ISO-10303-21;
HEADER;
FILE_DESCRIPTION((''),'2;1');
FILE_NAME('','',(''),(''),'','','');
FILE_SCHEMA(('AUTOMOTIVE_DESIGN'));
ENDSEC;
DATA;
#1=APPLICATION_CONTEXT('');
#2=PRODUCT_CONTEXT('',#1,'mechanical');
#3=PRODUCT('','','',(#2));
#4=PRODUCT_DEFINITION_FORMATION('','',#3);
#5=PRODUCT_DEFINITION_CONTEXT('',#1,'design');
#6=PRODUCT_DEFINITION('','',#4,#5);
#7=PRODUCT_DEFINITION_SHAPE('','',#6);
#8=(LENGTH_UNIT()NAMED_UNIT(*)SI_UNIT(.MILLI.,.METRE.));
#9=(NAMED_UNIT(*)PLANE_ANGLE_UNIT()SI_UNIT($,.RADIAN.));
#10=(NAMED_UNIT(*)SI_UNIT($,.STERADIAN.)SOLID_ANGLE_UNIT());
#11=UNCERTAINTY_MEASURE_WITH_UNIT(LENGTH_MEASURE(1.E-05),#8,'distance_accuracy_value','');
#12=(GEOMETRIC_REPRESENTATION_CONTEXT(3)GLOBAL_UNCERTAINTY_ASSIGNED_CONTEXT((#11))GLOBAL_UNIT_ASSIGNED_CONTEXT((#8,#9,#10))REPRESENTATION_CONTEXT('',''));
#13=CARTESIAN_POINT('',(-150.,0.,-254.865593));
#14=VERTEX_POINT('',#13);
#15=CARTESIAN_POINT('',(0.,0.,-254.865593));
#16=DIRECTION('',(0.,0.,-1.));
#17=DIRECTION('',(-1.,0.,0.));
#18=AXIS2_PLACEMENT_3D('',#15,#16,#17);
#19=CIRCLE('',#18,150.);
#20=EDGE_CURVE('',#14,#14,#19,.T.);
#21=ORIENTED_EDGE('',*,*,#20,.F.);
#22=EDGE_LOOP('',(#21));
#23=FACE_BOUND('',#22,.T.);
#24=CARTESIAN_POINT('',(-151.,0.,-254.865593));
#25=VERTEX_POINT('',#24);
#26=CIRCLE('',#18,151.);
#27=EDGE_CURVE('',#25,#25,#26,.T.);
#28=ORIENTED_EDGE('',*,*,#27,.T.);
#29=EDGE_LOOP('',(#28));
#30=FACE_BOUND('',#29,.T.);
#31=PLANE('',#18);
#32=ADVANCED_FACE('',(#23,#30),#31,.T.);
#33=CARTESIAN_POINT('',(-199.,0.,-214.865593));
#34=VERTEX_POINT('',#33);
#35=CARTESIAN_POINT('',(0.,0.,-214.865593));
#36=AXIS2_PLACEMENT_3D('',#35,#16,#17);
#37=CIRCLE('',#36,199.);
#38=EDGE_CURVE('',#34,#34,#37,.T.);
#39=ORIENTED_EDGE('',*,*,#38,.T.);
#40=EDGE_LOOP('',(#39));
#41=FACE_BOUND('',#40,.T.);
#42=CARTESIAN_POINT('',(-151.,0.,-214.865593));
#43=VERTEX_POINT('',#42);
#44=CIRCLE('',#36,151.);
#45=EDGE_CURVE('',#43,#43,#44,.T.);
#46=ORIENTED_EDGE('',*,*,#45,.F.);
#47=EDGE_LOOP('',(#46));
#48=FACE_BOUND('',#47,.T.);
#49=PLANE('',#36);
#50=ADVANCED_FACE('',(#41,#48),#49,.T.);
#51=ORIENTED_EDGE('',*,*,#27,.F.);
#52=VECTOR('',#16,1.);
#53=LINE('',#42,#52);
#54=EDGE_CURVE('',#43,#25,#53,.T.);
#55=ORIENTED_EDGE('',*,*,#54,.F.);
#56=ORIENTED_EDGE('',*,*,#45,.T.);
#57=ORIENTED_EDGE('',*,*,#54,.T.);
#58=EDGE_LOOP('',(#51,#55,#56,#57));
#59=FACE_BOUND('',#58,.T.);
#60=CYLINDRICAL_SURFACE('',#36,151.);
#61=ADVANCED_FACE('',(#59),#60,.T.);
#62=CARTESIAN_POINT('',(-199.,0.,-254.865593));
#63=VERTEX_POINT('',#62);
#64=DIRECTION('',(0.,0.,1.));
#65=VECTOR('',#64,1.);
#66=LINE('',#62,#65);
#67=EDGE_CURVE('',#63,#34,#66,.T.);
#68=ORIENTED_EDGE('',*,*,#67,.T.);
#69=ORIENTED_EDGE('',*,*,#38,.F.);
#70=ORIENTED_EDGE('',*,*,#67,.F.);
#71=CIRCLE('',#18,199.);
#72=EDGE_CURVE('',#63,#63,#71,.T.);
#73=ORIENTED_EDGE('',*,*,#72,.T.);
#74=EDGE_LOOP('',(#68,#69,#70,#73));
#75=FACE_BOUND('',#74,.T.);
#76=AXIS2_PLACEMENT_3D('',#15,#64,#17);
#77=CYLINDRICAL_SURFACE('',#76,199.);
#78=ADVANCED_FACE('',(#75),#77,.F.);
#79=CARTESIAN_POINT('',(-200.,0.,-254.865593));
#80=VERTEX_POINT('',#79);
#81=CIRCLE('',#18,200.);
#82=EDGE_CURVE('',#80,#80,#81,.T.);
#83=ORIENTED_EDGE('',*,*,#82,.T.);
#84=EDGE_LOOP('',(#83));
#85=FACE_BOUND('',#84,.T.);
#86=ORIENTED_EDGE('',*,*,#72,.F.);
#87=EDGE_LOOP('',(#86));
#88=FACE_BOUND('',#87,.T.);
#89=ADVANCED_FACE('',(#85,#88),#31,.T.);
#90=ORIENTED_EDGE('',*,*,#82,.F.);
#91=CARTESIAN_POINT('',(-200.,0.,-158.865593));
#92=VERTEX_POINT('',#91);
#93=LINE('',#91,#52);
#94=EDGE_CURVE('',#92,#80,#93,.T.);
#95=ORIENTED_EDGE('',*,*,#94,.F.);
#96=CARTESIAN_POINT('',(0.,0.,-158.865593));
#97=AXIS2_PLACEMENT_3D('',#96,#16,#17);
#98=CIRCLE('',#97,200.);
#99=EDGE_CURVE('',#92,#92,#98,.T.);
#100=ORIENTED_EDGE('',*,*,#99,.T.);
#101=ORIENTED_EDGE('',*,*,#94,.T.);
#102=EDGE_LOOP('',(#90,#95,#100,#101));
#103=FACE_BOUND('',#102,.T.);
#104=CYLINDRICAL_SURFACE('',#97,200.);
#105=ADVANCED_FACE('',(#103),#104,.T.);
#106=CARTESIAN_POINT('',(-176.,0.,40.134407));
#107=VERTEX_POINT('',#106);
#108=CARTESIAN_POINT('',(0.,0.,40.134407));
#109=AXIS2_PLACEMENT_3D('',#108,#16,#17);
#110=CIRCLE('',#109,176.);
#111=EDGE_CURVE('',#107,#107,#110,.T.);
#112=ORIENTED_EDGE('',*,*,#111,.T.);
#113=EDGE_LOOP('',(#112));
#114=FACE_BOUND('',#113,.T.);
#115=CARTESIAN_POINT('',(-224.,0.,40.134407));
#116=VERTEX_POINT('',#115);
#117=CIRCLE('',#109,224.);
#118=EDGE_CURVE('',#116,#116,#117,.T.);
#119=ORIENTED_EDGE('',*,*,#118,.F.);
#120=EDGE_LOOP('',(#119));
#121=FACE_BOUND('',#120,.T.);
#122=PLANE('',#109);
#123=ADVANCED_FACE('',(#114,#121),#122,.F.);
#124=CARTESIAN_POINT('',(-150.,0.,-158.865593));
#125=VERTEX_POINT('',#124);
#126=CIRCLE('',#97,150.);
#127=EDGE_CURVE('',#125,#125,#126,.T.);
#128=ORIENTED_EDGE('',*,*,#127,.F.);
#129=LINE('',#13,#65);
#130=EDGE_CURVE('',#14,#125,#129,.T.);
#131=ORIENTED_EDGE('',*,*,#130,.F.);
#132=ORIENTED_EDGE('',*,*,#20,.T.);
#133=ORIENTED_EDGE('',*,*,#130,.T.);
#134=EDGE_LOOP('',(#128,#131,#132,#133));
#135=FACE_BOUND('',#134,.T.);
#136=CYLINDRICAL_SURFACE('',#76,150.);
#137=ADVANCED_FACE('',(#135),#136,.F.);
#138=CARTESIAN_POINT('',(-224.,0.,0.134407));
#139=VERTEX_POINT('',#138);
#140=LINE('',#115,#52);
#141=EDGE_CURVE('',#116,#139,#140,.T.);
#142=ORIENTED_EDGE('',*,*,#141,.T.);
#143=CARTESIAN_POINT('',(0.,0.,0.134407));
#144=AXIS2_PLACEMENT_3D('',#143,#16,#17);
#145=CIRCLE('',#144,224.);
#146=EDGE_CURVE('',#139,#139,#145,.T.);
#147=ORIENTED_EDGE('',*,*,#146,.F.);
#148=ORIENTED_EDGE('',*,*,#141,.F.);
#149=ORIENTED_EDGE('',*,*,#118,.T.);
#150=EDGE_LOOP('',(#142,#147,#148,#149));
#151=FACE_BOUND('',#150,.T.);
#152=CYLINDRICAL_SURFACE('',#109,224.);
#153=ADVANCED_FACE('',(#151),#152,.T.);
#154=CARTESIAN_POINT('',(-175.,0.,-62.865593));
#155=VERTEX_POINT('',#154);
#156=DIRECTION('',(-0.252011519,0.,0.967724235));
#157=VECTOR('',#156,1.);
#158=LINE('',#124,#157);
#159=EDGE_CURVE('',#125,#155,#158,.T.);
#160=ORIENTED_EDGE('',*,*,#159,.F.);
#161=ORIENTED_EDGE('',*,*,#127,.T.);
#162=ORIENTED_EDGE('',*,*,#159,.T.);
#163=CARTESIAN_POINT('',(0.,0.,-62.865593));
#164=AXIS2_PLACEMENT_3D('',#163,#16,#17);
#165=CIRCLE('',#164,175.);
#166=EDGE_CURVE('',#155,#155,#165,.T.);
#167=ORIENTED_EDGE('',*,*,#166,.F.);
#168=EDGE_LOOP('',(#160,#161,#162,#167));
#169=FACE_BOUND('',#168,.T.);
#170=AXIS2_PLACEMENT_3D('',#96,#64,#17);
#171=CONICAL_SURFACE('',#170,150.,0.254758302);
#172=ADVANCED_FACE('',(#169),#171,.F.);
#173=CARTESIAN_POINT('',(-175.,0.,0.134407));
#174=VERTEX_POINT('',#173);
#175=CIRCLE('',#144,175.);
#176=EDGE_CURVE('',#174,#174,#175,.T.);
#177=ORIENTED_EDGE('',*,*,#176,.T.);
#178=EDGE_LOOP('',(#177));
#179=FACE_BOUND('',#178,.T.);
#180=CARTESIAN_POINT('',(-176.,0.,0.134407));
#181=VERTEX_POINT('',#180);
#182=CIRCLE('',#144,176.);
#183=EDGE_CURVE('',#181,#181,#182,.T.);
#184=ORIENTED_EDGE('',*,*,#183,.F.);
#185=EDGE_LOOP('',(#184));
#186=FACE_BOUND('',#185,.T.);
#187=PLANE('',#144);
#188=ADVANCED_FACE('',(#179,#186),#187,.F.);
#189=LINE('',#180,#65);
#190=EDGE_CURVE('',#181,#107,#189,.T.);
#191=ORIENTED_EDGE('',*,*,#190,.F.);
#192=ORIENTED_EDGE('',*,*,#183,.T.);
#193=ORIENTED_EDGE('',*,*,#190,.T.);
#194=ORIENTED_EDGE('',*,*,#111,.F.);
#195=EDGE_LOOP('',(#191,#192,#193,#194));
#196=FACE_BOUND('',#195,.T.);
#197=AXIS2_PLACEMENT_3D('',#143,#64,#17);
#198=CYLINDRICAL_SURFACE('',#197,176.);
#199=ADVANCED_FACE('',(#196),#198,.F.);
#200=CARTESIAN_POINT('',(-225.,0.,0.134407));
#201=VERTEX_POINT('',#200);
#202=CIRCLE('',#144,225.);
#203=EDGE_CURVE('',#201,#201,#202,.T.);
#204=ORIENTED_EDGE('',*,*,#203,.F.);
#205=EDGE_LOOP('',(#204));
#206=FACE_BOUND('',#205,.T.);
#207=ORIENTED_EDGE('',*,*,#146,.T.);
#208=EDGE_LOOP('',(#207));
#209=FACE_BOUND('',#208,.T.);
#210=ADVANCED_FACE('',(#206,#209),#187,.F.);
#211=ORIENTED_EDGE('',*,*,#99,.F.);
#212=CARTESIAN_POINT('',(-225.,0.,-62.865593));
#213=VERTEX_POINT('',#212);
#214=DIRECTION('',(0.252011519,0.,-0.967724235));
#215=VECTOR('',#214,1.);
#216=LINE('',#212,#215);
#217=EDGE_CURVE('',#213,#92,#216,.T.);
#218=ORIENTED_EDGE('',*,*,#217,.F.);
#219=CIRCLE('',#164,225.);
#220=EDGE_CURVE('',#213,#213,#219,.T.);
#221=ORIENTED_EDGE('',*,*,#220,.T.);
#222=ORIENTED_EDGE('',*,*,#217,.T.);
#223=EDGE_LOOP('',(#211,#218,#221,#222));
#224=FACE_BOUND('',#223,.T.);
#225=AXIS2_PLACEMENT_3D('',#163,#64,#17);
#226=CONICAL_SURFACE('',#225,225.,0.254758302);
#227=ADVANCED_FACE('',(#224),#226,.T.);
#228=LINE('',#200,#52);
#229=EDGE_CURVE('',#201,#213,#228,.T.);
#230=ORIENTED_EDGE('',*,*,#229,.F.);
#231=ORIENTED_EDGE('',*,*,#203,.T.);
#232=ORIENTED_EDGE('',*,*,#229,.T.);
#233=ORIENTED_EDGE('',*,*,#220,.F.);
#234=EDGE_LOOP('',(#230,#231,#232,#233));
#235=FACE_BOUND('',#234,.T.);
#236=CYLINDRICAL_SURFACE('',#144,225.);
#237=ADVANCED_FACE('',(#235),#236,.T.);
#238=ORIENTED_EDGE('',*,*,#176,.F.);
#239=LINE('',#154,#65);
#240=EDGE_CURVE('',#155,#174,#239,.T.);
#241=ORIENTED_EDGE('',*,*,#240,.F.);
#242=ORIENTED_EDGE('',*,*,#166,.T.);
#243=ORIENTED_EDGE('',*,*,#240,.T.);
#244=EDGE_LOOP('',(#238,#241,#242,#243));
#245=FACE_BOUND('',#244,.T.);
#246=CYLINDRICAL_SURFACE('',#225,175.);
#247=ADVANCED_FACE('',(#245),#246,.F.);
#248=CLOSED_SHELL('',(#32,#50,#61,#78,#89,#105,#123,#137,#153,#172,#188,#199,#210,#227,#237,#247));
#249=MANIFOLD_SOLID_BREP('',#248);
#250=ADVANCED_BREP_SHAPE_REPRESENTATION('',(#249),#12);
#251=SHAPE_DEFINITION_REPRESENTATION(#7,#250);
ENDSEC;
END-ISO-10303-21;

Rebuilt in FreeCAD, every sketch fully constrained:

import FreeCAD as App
import Part
import Sketcher
from FreeCAD import Vector
Q = App.Units.Quantity

doc = App.newDocument("Part")
body = doc.addObject("PartDesign::Body", "Body")

sketch1 = body.newObject("Sketcher::SketchObject", "Sketch")
sketch1.AttachmentSupport = (doc.getObject("XZ_Plane"), [""])
sketch1.MapMode = "FlatFace"
sketch1.addGeometry([
    Part.LineSegment(Vector(-151, -254.865593, 0), Vector(-150, -254.865593, 0)),
    Part.LineSegment(Vector(-150, -254.865593, 0), Vector(-150, -158.865593, 0)),
    Part.LineSegment(Vector(-150, -158.865593, 0), Vector(-175, -62.865593, 0)),
    Part.LineSegment(Vector(-175, -62.865593, 0), Vector(-175, 0.134407, 0)),
    Part.LineSegment(Vector(-175, 0.134407, 0), Vector(-176, 0.134407, 0)),
    Part.LineSegment(Vector(-176, 0.134407, 0), Vector(-176, 40.134407, 0)),
    Part.LineSegment(Vector(-176, 40.134407, 0), Vector(-224, 40.134407, 0)),
    Part.LineSegment(Vector(-224, 40.134407, 0), Vector(-224, 0.134407, 0)),
    Part.LineSegment(Vector(-224, 0.134407, 0), Vector(-225, 0.134407, 0)),
    Part.LineSegment(Vector(-225, 0.134407, 0), Vector(-225, -62.865593, 0)),
    Part.LineSegment(Vector(-225, -62.865593, 0), Vector(-200, -158.865593, 0)),
    Part.LineSegment(Vector(-200, -158.865593, 0), Vector(-200, -254.865593, 0)),
    Part.LineSegment(Vector(-200, -254.865593, 0), Vector(-199, -254.865593, 0)),
    Part.LineSegment(Vector(-199, -254.865593, 0), Vector(-199, -214.865593, 0)),
    Part.LineSegment(Vector(-199, -214.865593, 0), Vector(-151, -214.865593, 0)),
    Part.LineSegment(Vector(-151, -214.865593, 0), Vector(-151, -254.865593, 0)),
], False)
sketch1.addConstraint([
    Sketcher.Constraint("Coincident", 0, 2, 1, 1),
    Sketcher.Constraint("Coincident", 1, 2, 2, 1),
    Sketcher.Constraint("Coincident", 2, 2, 3, 1),
    Sketcher.Constraint("Coincident", 3, 2, 4, 1),
    Sketcher.Constraint("Coincident", 4, 2, 5, 1),
    Sketcher.Constraint("Coincident", 5, 2, 6, 1),
    Sketcher.Constraint("Coincident", 6, 2, 7, 1),
    Sketcher.Constraint("Coincident", 7, 2, 8, 1),
    Sketcher.Constraint("Coincident", 8, 2, 9, 1),
    Sketcher.Constraint("Coincident", 9, 2, 10, 1),
    Sketcher.Constraint("Coincident", 10, 2, 11, 1),
    Sketcher.Constraint("Coincident", 11, 2, 12, 1),
    Sketcher.Constraint("Coincident", 12, 2, 13, 1),
    Sketcher.Constraint("Coincident", 13, 2, 14, 1),
    Sketcher.Constraint("Coincident", 14, 2, 15, 1),
    Sketcher.Constraint("Coincident", 15, 2, 0, 1),
    Sketcher.Constraint("Horizontal", 0),
    Sketcher.Constraint("Vertical", 1),
    Sketcher.Constraint("Vertical", 3),
    Sketcher.Constraint("Horizontal", 4),
    Sketcher.Constraint("Vertical", 5),
    Sketcher.Constraint("Horizontal", 6),
    Sketcher.Constraint("Vertical", 7),
    Sketcher.Constraint("Horizontal", 8),
    Sketcher.Constraint("Vertical", 9),
    Sketcher.Constraint("Vertical", 11),
    Sketcher.Constraint("Horizontal", 12),
    Sketcher.Constraint("Vertical", 13),
    Sketcher.Constraint("Horizontal", 14),
    Sketcher.Constraint("Vertical", 15),
    Sketcher.Constraint("Parallel", 2, 10),
    Sketcher.Constraint("Horizontal", 4, 2, 7, 2),
    Sketcher.Constraint("Horizontal", 2, 2, 9, 2),
    Sketcher.Constraint("Horizontal", 1, 2, 10, 2),
    Sketcher.Constraint("Horizontal", 0, 2, 11, 2),
    Sketcher.Constraint("Equal", 0, 4),
    Sketcher.Constraint("Equal", 4, 8),
    Sketcher.Constraint("Equal", 8, 12),
    Sketcher.Constraint("Equal", 7, 13),
    Sketcher.Constraint("DistanceX", 0, 1, 0, 2, Q("1 mm")),
    Sketcher.Constraint("DistanceX", 6, 2, 6, 1, Q("48 mm")),
    Sketcher.Constraint("DistanceY", 1, 1, 1, 2, Q("96 mm")),
    Sketcher.Constraint("DistanceY", 3, 1, 3, 2, Q("63 mm")),
    Sketcher.Constraint("DistanceY", 5, 1, 5, 2, Q("40 mm")),
    Sketcher.Constraint("DistanceX", 0, 2, -1, 1, Q("150 mm")),
    Sketcher.Constraint("DistanceX", 2, 2, -1, 1, Q("175 mm")),
    Sketcher.Constraint("DistanceY", 1, 2, 2, 2, Q("96 mm")),
    Sketcher.Constraint("DistanceY", 0, 2, -1, 1, Q("254.865593 mm")),
])
revolution = body.newObject("PartDesign::Revolution", "Revolution")
revolution.Profile = sketch1
revolution.ReferenceAxis = (sketch1, ["V_Axis"])
revolution.Angle = 360

doc.recompute()
